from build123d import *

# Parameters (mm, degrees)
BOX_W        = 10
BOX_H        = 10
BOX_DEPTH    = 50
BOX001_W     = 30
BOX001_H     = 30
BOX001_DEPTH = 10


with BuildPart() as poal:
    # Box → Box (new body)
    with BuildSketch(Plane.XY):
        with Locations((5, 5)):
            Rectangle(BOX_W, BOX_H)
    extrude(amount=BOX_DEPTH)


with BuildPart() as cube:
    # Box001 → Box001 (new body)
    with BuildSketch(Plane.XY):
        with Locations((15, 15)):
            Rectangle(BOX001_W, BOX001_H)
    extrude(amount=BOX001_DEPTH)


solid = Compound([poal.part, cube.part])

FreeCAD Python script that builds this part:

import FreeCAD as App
import Part
import Sketcher
from FreeCAD import Vector


def add_polygon(sketch, points):
    """Adds a closed chain of lines whose ends are joined by coincident constraints."""
    first, n = sketch.GeometryCount, len(points)
    for a, b in zip(points, points[1:] + points[:1]):
        sketch.addGeometry(Part.LineSegment(App.Vector(*a, 0), App.Vector(*b, 0)), False)
    for i in range(n):
        sketch.addConstraint(Sketcher.Constraint("Coincident", first + i, 2, first + (i + 1) % n, 1))

doc = App.newDocument("Part")
params = doc.addObject("Spreadsheet::Sheet", "Params")
for row, (alias, value) in enumerate([
    ("sketch1_width", "10 mm"),
    ("pad1_length", "50 mm"),
    ("sketch2_width", "30 mm"),
    ("pad2_length", "10 mm"),
], start=1):
    params.set(f"A{row}", alias)
    params.set(f"B{row}", "=" + value)
    params.setAlias(f"B{row}", alias)

body = doc.addObject("PartDesign::Body", "Body")

sketch1 = doc.addObject("Sketcher::SketchObject", "Sketch")
body.addObject(sketch1)
sketch1.AttachmentSupport = (doc.XY_Plane, [""])
sketch1.MapMode = "FlatFace"
add_polygon(sketch1, [(0, 10), (0, 0), (10, 0), (10, 10)])
sketch1.addConstraint([
    Sketcher.Constraint("Vertical", 0),
    Sketcher.Constraint("Horizontal", 1),
    Sketcher.Constraint("Vertical", 2),
    Sketcher.Constraint("Horizontal", 3),
    Sketcher.Constraint("Coincident", 0, 2, -1, 1),
    Sketcher.Constraint("Equal", 3, 0),
    Sketcher.Constraint("DistanceX", 1, 1, 1, 2, 10.0),
])
sketch1.setExpression("Constraints[10]", "Params.sketch1_width")
pad1 = doc.addObject("PartDesign::Pad", "Pad")
body.addObject(pad1)
pad1.Profile = sketch1
pad1.setExpression("Length", "Params.pad1_length")
body2 = doc.addObject("PartDesign::Body", "Body001")

sketch2 = doc.addObject("Sketcher::SketchObject", "Sketch001")
body2.addObject(sketch2)
sketch2.AttachmentSupport = (doc.getObject("XY_Plane001"), [""])
sketch2.MapMode = "FlatFace"
add_polygon(sketch2, [(0, 30), (0, 0), (30, 0), (30, 30)])
sketch2.addConstraint([
    Sketcher.Constraint("Vertical", 0),
    Sketcher.Constraint("Horizontal", 1),
    Sketcher.Constraint("Vertical", 2),
    Sketcher.Constraint("Horizontal", 3),
    Sketcher.Constraint("Coincident", 0, 2, -1, 1),
    Sketcher.Constraint("Equal", 3, 0),
    Sketcher.Constraint("DistanceX", 1, 1, 1, 2, 30.0),
])
sketch2.setExpression("Constraints[10]", "Params.sketch2_width")
pad2 = doc.addObject("PartDesign::Pad", "Pad001")
body2.addObject(pad2)
pad2.Profile = sketch2
pad2.setExpression("Length", "Params.pad2_length")

doc.recompute()
